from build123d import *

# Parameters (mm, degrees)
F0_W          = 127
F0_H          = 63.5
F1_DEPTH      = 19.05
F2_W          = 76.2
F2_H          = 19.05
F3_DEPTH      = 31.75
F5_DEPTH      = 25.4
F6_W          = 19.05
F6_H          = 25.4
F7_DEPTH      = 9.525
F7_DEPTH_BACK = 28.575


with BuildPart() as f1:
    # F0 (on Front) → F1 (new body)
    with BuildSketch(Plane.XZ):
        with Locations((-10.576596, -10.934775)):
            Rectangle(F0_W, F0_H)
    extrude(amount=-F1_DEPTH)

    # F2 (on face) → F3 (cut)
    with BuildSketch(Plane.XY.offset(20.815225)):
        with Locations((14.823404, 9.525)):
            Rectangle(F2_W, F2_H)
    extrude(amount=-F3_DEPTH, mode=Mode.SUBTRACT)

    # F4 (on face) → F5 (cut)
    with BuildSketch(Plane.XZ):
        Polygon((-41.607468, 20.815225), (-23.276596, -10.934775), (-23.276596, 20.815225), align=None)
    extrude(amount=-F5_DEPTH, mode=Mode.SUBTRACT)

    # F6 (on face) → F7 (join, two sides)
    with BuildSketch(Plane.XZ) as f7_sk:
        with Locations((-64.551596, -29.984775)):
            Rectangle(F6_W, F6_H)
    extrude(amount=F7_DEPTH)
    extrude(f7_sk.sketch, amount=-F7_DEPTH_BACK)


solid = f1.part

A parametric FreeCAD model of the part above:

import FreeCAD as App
import Part
import Sketcher
Q = App.Units.Quantity


def add_polygon(sketch, points):
    """Adds a closed chain of lines whose ends are joined by coincident constraints."""
    first, n = sketch.GeometryCount, len(points)
    for a, b in zip(points, points[1:] + points[:1]):
        sketch.addGeometry(Part.LineSegment(App.Vector(*a, 0), App.Vector(*b, 0)), False)
    for i in range(n):
        sketch.addConstraint(Sketcher.Constraint("Coincident", first + i, 2, first + (i + 1) % n, 1))

doc = App.newDocument("Part")
body = doc.addObject("PartDesign::Body", "Body")

# Sketch on XZ plane
sketch1 = doc.addObject("Sketcher::SketchObject", "Sketch")
body.addObject(sketch1)
sketch1.AttachmentSupport = (doc.XZ_Plane, [""])
sketch1.MapMode = "FlatFace"
add_polygon(sketch1, [(-74, 21), (-74, -43), (53, -43), (53, 21)])  # lines 0-3
sketch1.addConstraint([
    Sketcher.Constraint("Vertical", 0),
    Sketcher.Constraint("Horizontal", 1),
    Sketcher.Constraint("Vertical", 2),
    Sketcher.Constraint("Horizontal", 3),
    Sketcher.Constraint("DistanceX", 1, 1, 1, 2, Q("5 in")),
    Sketcher.Constraint("DistanceY", 0, 2, 0, 1, Q("2.5 in")),
    Sketcher.Constraint("DistanceX", 0, 2, -1, 1, Q("74.076596 mm")),
    Sketcher.Constraint("DistanceY", 0, 2, -1, 1, Q("42.684775 mm")),
])
pad1 = doc.addObject("PartDesign::Pad", "Pad")
body.addObject(pad1)
pad1.Profile = sketch1
pad1.Length = Q("0.75 in")
pad1.Reversed = True

# Sketch on XY plane
sketch2 = doc.addObject("Sketcher::SketchObject", "Sketch001")
body.addObject(sketch2)
sketch2.AttachmentSupport = (doc.XY_Plane, [""])
sketch2.MapMode = "FlatFace"
sketch2.AttachmentOffset = App.Placement(App.Vector(0, 0, 20.815225), App.Rotation())
add_polygon(sketch2, [(-23, 19), (-23, 0), (53, 0), (53, 19)])  # lines 0-3
sketch2.addConstraint([
    Sketcher.Constraint("Vertical", 0),
    Sketcher.Constraint("Horizontal", 1),
    Sketcher.Constraint("Vertical", 2),
    Sketcher.Constraint("Horizontal", 3),
    Sketcher.Constraint("PointOnObject", 0, 2, -1),
    Sketcher.Constraint("DistanceX", 1, 1, 1, 2, Q("3 in")),
    Sketcher.Constraint("DistanceY", 0, 2, 0, 1, Q("0.75 in")),
    Sketcher.Constraint("DistanceX", 0, 2, -1, 1, Q("23.276596 mm")),
])
pocket1 = doc.addObject("PartDesign::Pocket", "Pocket")
body.addObject(pocket1)
pocket1.Profile = sketch2
pocket1.Length = Q("1.25 in")

# Sketch on XZ plane
sketch3 = doc.addObject("Sketcher::SketchObject", "Sketch002")
body.addObject(sketch3)
sketch3.AttachmentSupport = (doc.XZ_Plane, [""])
sketch3.MapMode = "FlatFace"
add_polygon(sketch3, [(-42, 21), (-23, -11), (-23, 21)])  # lines 0-2
sketch3.addConstraint([
    Sketcher.Constraint("Vertical", 1),
    Sketcher.Constraint("Horizontal", 2),
    Sketcher.Constraint("Angle", 0, Q("-59.999999 deg")),
    Sketcher.Constraint("DistanceY", 1, 1, 1, 2, Q("1.25 in")),
    Sketcher.Constraint("DistanceX", 0, 2, -1, 1, Q("23.276596 mm")),
    Sketcher.Constraint("DistanceY", 0, 2, -1, 1, Q("10.934775 mm")),
])
pocket2 = doc.addObject("PartDesign::Pocket", "Pocket001")
body.addObject(pocket2)
pocket2.Profile = sketch3
pocket2.Length = Q("1 in")

# Sketch on XZ plane
sketch4 = doc.addObject("Sketcher::SketchObject", "Sketch003")
body.addObject(sketch4)
sketch4.AttachmentSupport = (doc.XZ_Plane, [""])
sketch4.MapMode = "FlatFace"
add_polygon(sketch4, [(-74, -17), (-74, -43), (-55, -43), (-55, -17)])  # lines 0-3
sketch4.addConstraint([
    Sketcher.Constraint("Vertical", 0),
    Sketcher.Constraint("Horizontal", 1),
    Sketcher.Constraint("Vertical", 2),
    Sketcher.Constraint("Horizontal", 3),
    Sketcher.Constraint("DistanceY", 0, 2, 0, 1, Q("1 in")),
    Sketcher.Constraint("DistanceX", 1, 1, 1, 2, Q("0.75 in")),
    Sketcher.Constraint("DistanceX", 0, 2, -1, 1, Q("74.076596 mm")),
    Sketcher.Constraint("DistanceY", 0, 2, -1, 1, Q("42.684775 mm")),
])
pad2 = doc.addObject("PartDesign::Pad", "Pad001")
body.addObject(pad2)
pad2.Profile = sketch4
pad2.Type = "TwoLengths"
pad2.Length = Q("0.375 in")
pad2.Length2 = Q("1.125 in")

doc.recompute()
